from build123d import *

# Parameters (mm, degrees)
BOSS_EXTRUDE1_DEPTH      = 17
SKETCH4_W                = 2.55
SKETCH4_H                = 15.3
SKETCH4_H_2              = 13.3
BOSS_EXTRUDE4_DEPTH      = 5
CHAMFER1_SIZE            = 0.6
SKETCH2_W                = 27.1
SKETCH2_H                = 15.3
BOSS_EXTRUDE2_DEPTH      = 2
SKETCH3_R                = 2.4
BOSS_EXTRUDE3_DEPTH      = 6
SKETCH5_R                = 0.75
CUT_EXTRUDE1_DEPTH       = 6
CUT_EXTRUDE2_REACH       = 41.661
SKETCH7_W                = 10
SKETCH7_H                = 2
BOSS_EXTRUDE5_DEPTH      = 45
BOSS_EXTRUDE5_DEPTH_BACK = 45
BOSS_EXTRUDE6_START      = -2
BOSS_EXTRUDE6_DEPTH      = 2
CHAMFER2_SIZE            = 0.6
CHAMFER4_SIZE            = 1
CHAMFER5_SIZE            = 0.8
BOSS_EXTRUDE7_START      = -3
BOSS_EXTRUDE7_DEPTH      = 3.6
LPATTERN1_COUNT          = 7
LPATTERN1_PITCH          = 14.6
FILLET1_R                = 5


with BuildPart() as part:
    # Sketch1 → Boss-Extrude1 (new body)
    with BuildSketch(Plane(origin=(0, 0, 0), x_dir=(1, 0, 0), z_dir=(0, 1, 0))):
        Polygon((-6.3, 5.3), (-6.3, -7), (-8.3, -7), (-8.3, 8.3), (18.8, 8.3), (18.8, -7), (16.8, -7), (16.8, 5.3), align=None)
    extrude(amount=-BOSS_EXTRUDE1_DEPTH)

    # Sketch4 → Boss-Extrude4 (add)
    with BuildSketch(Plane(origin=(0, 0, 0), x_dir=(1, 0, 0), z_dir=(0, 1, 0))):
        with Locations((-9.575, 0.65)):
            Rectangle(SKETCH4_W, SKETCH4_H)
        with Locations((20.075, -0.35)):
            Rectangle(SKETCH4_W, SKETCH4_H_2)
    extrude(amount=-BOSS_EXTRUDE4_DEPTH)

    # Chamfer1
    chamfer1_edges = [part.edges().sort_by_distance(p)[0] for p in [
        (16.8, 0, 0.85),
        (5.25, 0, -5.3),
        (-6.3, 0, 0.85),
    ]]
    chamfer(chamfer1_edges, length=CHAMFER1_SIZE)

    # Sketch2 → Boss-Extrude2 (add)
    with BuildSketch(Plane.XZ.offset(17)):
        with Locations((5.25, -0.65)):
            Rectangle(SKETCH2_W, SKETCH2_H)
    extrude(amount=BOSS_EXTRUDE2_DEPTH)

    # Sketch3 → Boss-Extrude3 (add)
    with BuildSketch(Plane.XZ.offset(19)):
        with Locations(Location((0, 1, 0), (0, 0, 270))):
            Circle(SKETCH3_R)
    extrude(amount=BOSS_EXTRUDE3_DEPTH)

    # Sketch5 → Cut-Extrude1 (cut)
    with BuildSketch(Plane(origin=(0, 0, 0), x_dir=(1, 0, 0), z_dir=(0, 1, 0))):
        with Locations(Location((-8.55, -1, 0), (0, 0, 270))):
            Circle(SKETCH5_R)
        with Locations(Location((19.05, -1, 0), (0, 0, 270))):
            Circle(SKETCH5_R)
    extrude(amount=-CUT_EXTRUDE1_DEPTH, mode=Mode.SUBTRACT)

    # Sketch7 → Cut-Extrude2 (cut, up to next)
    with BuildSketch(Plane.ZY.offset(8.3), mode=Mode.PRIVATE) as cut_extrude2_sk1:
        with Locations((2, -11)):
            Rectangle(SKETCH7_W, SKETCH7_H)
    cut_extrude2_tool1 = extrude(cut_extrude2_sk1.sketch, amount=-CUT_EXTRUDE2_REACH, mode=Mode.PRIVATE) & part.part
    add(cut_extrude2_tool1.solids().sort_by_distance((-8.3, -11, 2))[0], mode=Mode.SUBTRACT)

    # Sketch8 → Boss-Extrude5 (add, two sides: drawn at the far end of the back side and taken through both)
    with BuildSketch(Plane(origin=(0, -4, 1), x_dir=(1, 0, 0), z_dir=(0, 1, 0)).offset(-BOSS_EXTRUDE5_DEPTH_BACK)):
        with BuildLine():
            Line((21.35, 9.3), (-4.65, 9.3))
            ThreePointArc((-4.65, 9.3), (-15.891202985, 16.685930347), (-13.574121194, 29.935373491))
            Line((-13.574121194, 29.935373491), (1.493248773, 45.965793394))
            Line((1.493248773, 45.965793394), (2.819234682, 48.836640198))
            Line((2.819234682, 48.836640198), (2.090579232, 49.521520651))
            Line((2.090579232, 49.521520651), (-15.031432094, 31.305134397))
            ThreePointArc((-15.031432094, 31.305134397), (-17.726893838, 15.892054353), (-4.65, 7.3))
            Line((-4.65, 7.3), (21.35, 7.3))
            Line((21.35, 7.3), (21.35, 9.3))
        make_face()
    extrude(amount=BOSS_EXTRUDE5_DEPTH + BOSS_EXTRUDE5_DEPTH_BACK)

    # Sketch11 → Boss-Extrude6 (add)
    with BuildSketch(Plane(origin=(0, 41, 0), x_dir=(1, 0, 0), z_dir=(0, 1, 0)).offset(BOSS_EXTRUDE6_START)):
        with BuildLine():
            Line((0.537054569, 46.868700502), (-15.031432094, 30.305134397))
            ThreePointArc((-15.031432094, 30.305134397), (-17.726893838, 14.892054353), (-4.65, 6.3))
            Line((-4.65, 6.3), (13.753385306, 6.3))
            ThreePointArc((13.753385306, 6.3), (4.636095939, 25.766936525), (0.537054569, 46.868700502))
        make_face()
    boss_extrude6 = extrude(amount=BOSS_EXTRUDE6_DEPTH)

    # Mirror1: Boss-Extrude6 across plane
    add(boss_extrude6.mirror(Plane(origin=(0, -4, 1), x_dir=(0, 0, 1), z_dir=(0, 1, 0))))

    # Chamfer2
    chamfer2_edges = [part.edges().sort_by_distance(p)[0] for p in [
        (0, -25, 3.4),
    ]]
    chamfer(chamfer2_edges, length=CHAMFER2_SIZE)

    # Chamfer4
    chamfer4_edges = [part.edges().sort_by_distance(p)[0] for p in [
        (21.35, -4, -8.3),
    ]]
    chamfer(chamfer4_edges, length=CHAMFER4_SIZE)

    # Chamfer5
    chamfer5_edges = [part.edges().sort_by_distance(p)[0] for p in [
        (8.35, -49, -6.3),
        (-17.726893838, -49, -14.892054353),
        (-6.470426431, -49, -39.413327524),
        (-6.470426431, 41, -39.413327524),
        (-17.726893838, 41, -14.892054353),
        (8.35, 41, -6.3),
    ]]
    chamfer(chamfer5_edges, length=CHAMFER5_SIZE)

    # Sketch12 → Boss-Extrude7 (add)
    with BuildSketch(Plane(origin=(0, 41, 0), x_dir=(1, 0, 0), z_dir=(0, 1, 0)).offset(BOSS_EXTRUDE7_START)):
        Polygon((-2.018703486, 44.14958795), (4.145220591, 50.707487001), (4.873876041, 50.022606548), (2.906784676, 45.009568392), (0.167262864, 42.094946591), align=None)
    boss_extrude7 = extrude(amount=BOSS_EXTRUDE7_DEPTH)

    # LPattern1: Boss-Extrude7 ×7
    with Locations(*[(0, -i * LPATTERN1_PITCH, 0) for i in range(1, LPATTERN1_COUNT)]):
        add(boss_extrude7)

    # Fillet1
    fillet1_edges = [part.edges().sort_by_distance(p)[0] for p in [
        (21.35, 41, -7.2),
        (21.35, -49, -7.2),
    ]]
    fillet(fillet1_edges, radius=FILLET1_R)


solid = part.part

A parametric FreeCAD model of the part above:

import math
import FreeCAD as App
import Part
import Sketcher
from FreeCAD import Vector
Q = App.Units.Quantity


def edges_at(feature, points):
    """Names of the edges that pass closest to the given points."""
    edges = feature.Shape.Edges
    near = lambda p: min(range(len(edges)), key=lambda i: edges[i].distToShape(Part.Vertex(*p))[0])
    return sorted({f"Edge{near(p) + 1}" for p in points})

doc = App.newDocument("Part")
body = doc.addObject("PartDesign::Body", "Body")

sketch1 = body.newObject("Sketcher::SketchObject", "Sketch")
sketch1.AttachmentSupport = (doc.getObject("XZ_Plane"), [""])
sketch1.MapMode = "FlatFace"
sketch1.addGeometry([
    Part.LineSegment(Vector(-6.3, 7, 0), Vector(-6.3, -5.3, 0)),
    Part.LineSegment(Vector(-6.3, -5.3, 0), Vector(16.8, -5.3, 0)),
    Part.LineSegment(Vector(16.8, -5.3, 0), Vector(16.8, 7, 0)),
    Part.LineSegment(Vector(16.8, 7, 0), Vector(18.8, 7, 0)),
    Part.LineSegment(Vector(18.8, 7, 0), Vector(18.8, -8.3, 0)),
    Part.LineSegment(Vector(18.8, -8.3, 0), Vector(-8.3, -8.3, 0)),
    Part.LineSegment(Vector(-8.3, -8.3, 0), Vector(-8.3, 7, 0)),
    Part.LineSegment(Vector(-8.3, 7, 0), Vector(-6.3, 7, 0)),
], False)
sketch1.addConstraint([
    Sketcher.Constraint("Coincident", 0, 2, 1, 1),
    Sketcher.Constraint("Coincident", 1, 2, 2, 1),
    Sketcher.Constraint("Coincident", 2, 2, 3, 1),
    Sketcher.Constraint("Coincident", 3, 2, 4, 1),
    Sketcher.Constraint("Coincident", 4, 2, 5, 1),
    Sketcher.Constraint("Coincident", 5, 2, 6, 1),
    Sketcher.Constraint("Coincident", 6, 2, 7, 1),
    Sketcher.Constraint("Coincident", 7, 2, 0, 1),
    Sketcher.Constraint("Vertical", 0),
    Sketcher.Constraint("Horizontal", 1),
    Sketcher.Constraint("Vertical", 2),
    Sketcher.Constraint("Horizontal", 3),
    Sketcher.Constraint("Vertical", 4),
    Sketcher.Constraint("Horizontal", 5),
    Sketcher.Constraint("Vertical", 6),
    Sketcher.Constraint("Horizontal", 7),
    Sketcher.Constraint("Horizontal", 3, 2, 6, 2),
    Sketcher.Constraint("Equal", 3, 7),
    Sketcher.Constraint("DistanceX", 3, 1, 3, 2, Q("2 mm")),
    Sketcher.Constraint("DistanceX", 1, 1, 1, 2, Q("23.1 mm")),
    Sketcher.Constraint("DistanceY", 0, 2, 0, 1, Q("12.3 mm")),
    Sketcher.Constraint("DistanceY", 4, 2, 4, 1, Q("15.3 mm")),
    Sketcher.Constraint("DistanceY", -1, 1, 2, 2, Q("7 mm")),
    Sketcher.Constraint("DistanceX", 0, 2, -1, 1, Q("6.3 mm")),
])
pad1 = body.newObject("PartDesign::Pad", "Pad")
pad1.Profile = sketch1
pad1.Length = 17

sketch2 = body.newObject("Sketcher::SketchObject", "Sketch001")
sketch2.AttachmentSupport = (doc.getObject("XZ_Plane"), [""])
sketch2.MapMode = "FlatFace"
sketch2.addGeometry([
    Part.LineSegment(Vector(-10.8, -8.3, 0), Vector(-10.8, 7, 0)),
    Part.LineSegment(Vector(-10.8, 7, 0), Vector(-8.3, 7, 0)),
    Part.LineSegment(Vector(-8.3, 7, 0), Vector(-8.3, -8.3, 0)),
    Part.LineSegment(Vector(-8.3, -8.3, 0), Vector(-10.8, -8.3, 0)),
    Part.LineSegment(Vector(18.8, -6.3, 0), Vector(18.8, 7, 0)),
    Part.LineSegment(Vector(18.8, 7, 0), Vector(21.4, 7, 0)),
    Part.LineSegment(Vector(21.4, 7, 0), Vector(21.4, -6.3, 0)),
    Part.LineSegment(Vector(21.4, -6.3, 0), Vector(18.8, -6.3, 0)),
], False)
sketch2.addConstraint([
    Sketcher.Constraint("Coincident", 0, 2, 1, 1),
    Sketcher.Constraint("Coincident", 1, 2, 2, 1),
    Sketcher.Constraint("Coincident", 2, 2, 3, 1),
    Sketcher.Constraint("Coincident", 3, 2, 0, 1),
    Sketcher.Constraint("Coincident", 4, 2, 5, 1),
    Sketcher.Constraint("Coincident", 5, 2, 6, 1),
    Sketcher.Constraint("Coincident", 6, 2, 7, 1),
    Sketcher.Constraint("Coincident", 7, 2, 4, 1),
    Sketcher.Constraint("Vertical", 0),
    Sketcher.Constraint("Horizontal", 1),
    Sketcher.Constraint("Vertical", 2),
    Sketcher.Constraint("Horizontal", 3),
    Sketcher.Constraint("Vertical", 4),
    Sketcher.Constraint("Horizontal", 5),
    Sketcher.Constraint("Vertical", 6),
    Sketcher.Constraint("Horizontal", 7),
    Sketcher.Constraint("Horizontal", 1, 2, 4, 2),
    Sketcher.Constraint("Equal", 3, 5),
    Sketcher.Constraint("DistanceY", 0, 1, 0, 2, Q("15.3 mm")),
    Sketcher.Constraint("DistanceY", 4, 1, 4, 2, Q("13.3 mm")),
    Sketcher.Constraint("DistanceY", -1, 1, 0, 2, Q("7 mm")),
    Sketcher.Constraint("DistanceX", 1, 1, 1, 2, Q("2.55 mm")),
    Sketcher.Constraint("DistanceX", 1, 2, -1, 1, Q("8.3 mm")),
    Sketcher.Constraint("DistanceX", -1, 1, 4, 2, Q("18.8 mm")),
])
pad2 = body.newObject("PartDesign::Pad", "Pad001")
pad2.Profile = sketch2
pad2.Length = 5
doc.recompute()

chamfer = body.newObject("PartDesign::Chamfer", "Chamfer")
chamfer.Base = (pad2, edges_at(pad2, [(16.8, 0, 0.85), (5.25, 0, -5.3), (-6.3, 0, 0.85)]))
chamfer.Size = 0.6

sketch3 = body.newObject("Sketcher::SketchObject", "Sketch002")
sketch3.AttachmentSupport = (doc.getObject("XZ_Plane"), [""])
sketch3.MapMode = "FlatFace"
sketch3.AttachmentOffset = App.Placement(Vector(0, 0, 17), App.Rotation())
sketch3.addGeometry([
    Part.LineSegment(Vector(-8, 7, 0), Vector(-8, -8, 0)),
    Part.LineSegment(Vector(-8, -8, 0), Vector(19, -8, 0)),
    Part.LineSegment(Vector(19, -8, 0), Vector(19, 7, 0)),
    Part.LineSegment(Vector(19, 7, 0), Vector(-8, 7, 0)),
], False)
sketch3.addConstraint([
    Sketcher.Constraint("Coincident", 0, 2, 1, 1),
    Sketcher.Constraint("Coincident", 1, 2, 2, 1),
    Sketcher.Constraint("Coincident", 2, 2, 3, 1),
    Sketcher.Constraint("Coincident", 3, 2, 0, 1),
    Sketcher.Constraint("Vertical", 0),
    Sketcher.Constraint("Horizontal", 1),
    Sketcher.Constraint("Vertical", 2),
    Sketcher.Constraint("Horizontal", 3),
    Sketcher.Constraint("DistanceX", 1, 1, 1, 2, Q("27.1 mm")),
    Sketcher.Constraint("DistanceY", 0, 2, 0, 1, Q("15.3 mm")),
    Sketcher.Constraint("DistanceY", -1, 1, 2, 2, Q("7 mm")),
    Sketcher.Constraint("DistanceX", 0, 2, -1, 1, Q("8.3 mm")),
])
pad3 = body.newObject("PartDesign::Pad", "Pad002")
pad3.Profile = sketch3
pad3.Length = 2

sketch4 = body.newObject("Sketcher::SketchObject", "Sketch003")
sketch4.AttachmentSupport = (doc.getObject("XZ_Plane"), [""])
sketch4.MapMode = "FlatFace"
sketch4.AttachmentOffset = App.Placement(Vector(0, 0, 19), App.Rotation())
sketch4.addGeometry(Part.Circle(Vector(0, 1, 0), Vector(0, 0, 1), 2.4), False)
sketch4.addConstraint([
    Sketcher.Constraint("PointOnObject", 0, 3, -2),
    Sketcher.Constraint("Diameter", 0, Q("4.8 mm")),
    Sketcher.Constraint("DistanceY", -1, 1, 0, 3, Q("1 mm")),
])
pad4 = body.newObject("PartDesign::Pad", "Pad003")
pad4.Profile = sketch4
pad4.Length = 6

sketch5 = body.newObject("Sketcher::SketchObject", "Sketch004")
sketch5.AttachmentSupport = (doc.getObject("XZ_Plane"), [""])
sketch5.MapMode = "FlatFace"
sketch5.addGeometry([
    Part.Circle(Vector(-8.6, 1, 0), Vector(0, 0, 1), 0.8),
    Part.Circle(Vector(19.1, 1, 0), Vector(0, 0, 1), 0.8),
], False)
sketch5.addConstraint([
    Sketcher.Constraint("Equal", 0, 1),
    Sketcher.Constraint("Horizontal", 0, 3, 1, 3),
    Sketcher.Constraint("Diameter", 0, Q("1.5 mm")),
    Sketcher.Constraint("DistanceY", -1, 1, 0, 3, Q("1 mm")),
    Sketcher.Constraint("DistanceX", 0, 3, 1, 3, Q("27.6 mm")),
    Sketcher.Constraint("DistanceX", 0, 3, -1, 1, Q("8.55 mm")),
])
pocket1 = body.newObject("PartDesign::Pocket", "Pocket")
pocket1.Profile = sketch5
pocket1.Length = 6
pocket1.Reversed = True

sketch6 = body.newObject("Sketcher::SketchObject", "Sketch005")
sketch6.AttachmentSupport = (doc.getObject("YZ_Plane"), [""])
sketch6.MapMode = "FlatFace"
sketch6.AttachmentOffset = App.Placement(Vector(0, 0, -8.3), App.Rotation())
sketch6.addGeometry([
    Part.LineSegment(Vector(-10, -3, 0), Vector(-12, -3, 0)),
    Part.LineSegment(Vector(-12, -3, 0), Vector(-12, 7, 0)),
    Part.LineSegment(Vector(-12, 7, 0), Vector(-10, 7, 0)),
    Part.LineSegment(Vector(-10, 7, 0), Vector(-10, -3, 0)),
], False)
sketch6.addConstraint([
    Sketcher.Constraint("Coincident", 0, 2, 1, 1),
    Sketcher.Constraint("Coincident", 1, 2, 2, 1),
    Sketcher.Constraint("Coincident", 2, 2, 3, 1),
    Sketcher.Constraint("Coincident", 3, 2, 0, 1),
    Sketcher.Constraint("Horizontal", 0),
    Sketcher.Constraint("Vertical", 1),
    Sketcher.Constraint("Horizontal", 2),
    Sketcher.Constraint("Vertical", 3),
    Sketcher.Constraint("DistanceX", 0, 2, 0, 1, Q("2 mm")),
    Sketcher.Constraint("DistanceY", 1, 1, 1, 2, Q("10 mm")),
    Sketcher.Constraint("DistanceX", 0, 2, -1, 1, Q("12 mm")),
    Sketcher.Constraint("DistanceY", 0, 2, -1, 1, Q("3 mm")),
])
pocket2 = body.newObject("PartDesign::Pocket", "Pocket001")
pocket2.Profile = sketch6
pocket2.Type = "UpToFirst"
pocket2.Reversed = True

sketch7 = body.newObject("Sketcher::SketchObject", "Sketch006")
sketch7.AttachmentSupport = (doc.getObject("XZ_Plane"), [""])
sketch7.MapMode = "FlatFace"
sketch7.AttachmentOffset = App.Placement(Vector(0, 0, 4), App.Rotation())
sketch7.addGeometry([
    Part.LineSegment(Vector(21.4, -8.3, 0), Vector(-4.7, -8.3, 0)),
    Part.ArcOfCircle(Part.Circle(Vector(-4.7, -20.5, 0), Vector(0, 0, 1), 12.2), math.radians(90), math.radians(223)),
    Part.LineSegment(Vector(-13.6, -28.9, 0), Vector(1.5, -45, 0)),
    Part.LineSegment(Vector(1.5, -45, 0), Vector(2.8, -47.8, 0)),
    Part.LineSegment(Vector(2.8, -47.8, 0), Vector(2.1, -48.5, 0)),
    Part.LineSegment(Vector(2.1, -48.5, 0), Vector(-15, -30.3, 0)),
    Part.ArcOfCircle(Part.Circle(Vector(-4.7, -20.5, 0), Vector(0, 0, 1), 14.2), math.radians(90), math.radians(223)),
    Part.LineSegment(Vector(-4.7, -6.3, 0), Vector(21.4, -6.3, 0)),
    Part.LineSegment(Vector(21.4, -6.3, 0), Vector(21.4, -8.3, 0)),
], False)
sketch7.addConstraint([
    Sketcher.Constraint("Tangent", 0, 2, 1, 1),
    Sketcher.Constraint("Tangent", 1, 2, 2, 1),
    Sketcher.Constraint("Coincident", 2, 2, 3, 1),
    Sketcher.Constraint("Coincident", 3, 2, 4, 1),
    Sketcher.Constraint("Coincident", 4, 2, 5, 1),
    Sketcher.Constraint("Tangent", 5, 2, 6, 2),
    Sketcher.Constraint("Tangent", 6, 1, 7, 1),
    Sketcher.Constraint("Coincident", 7, 2, 8, 1),
    Sketcher.Constraint("Coincident", 8, 2, 0, 1),
    Sketcher.Constraint("Horizontal", 0),
    Sketcher.Constraint("Horizontal", 7),
    Sketcher.Constraint("Vertical", 8),
    Sketcher.Constraint("Coincident", 6, 3, 1, 3),
    Sketcher.Constraint("Perpendicular", 2, 4),
    Sketcher.Constraint("Perpendicular", 4, 5),
    Sketcher.Constraint("DistanceX", 0, 2, 0, 1, Q("26 mm")),
    Sketcher.Constraint("DistanceY", 8, 2, 8, 1, Q("2 mm")),
    Sketcher.Constraint("Distance", 2, Q("22 mm")),
    Sketcher.Constraint("Distance", 4, Q("1 mm")),
    Sketcher.Constraint("Distance", 5, Q("25 mm")),
    Sketcher.Constraint("DistanceY", 0, 2, -1, 1, Q("8.3 mm")),
    Sketcher.Constraint("DistanceX", 1, 3, -1, 1, Q("4.65 mm")),
    Sketcher.Constraint("Radius", 1, Q("12.247381 mm")),
    Sketcher.Constraint("DistanceX", 1, 2, 4, 2, Q("15.6647 mm")),
])
pad5 = body.newObject("PartDesign::Pad", "Pad004")
pad5.Profile = sketch7
pad5.Type = "TwoLengths"
pad5.Length = 45
pad5.Length2 = 45
pad5.Reversed = True

sketch8 = body.newObject("Sketcher::SketchObject", "Sketch007")
sketch8.AttachmentSupport = (doc.getObject("XZ_Plane"), [""])
sketch8.MapMode = "FlatFace"
sketch8.AttachmentOffset = App.Placement(Vector(0, 0, -39), App.Rotation())
sketch8.addGeometry([
    Part.LineSegment(Vector(1, -47, 0), Vector(-15, -30, 0)),
    Part.ArcOfCircle(Part.Circle(Vector(-5, -21, 0), Vector(0, 0, 1), 14), math.radians(90), math.radians(223)),
    Part.LineSegment(Vector(-5, -6, 0), Vector(14, -6, 0)),
    Part.ArcOfCircle(Part.Circle(Vector(88, -53, 0), Vector(0, 0, 1), 88), math.radians(148), math.radians(176)),
], False)
sketch8.addConstraint([
    Sketcher.Constraint("Tangent", 0, 2, 1, 2),
    Sketcher.Constraint("Tangent", 1, 1, 2, 1),
    Sketcher.Constraint("Coincident", 2, 2, 3, 1),
    Sketcher.Constraint("Coincident", 3, 2, 0, 1),
    Sketcher.Constraint("Horizontal", 2),
    Sketcher.Constraint("DistanceY", 1, 1, -1, 1, Q("6.3 mm")),
    Sketcher.Constraint("DistanceX", 1, 3, -1, 1, Q("4.65 mm")),
    Sketcher.Constraint("Radius", 1, Q("14.247381 mm")),
    Sketcher.Constraint("Radius", 3, Q("87.552406 mm")),
    Sketcher.Constraint("DistanceY", 3, 2, -1, 1, Q("46.868701 mm")),
    Sketcher.Constraint("DistanceX", 2, 1, 2, 2, Q("18.403385 mm")),
    Sketcher.Constraint("DistanceX", 2, 2, 3, 3, Q("74.129009 mm")),
])
pad6 = body.newObject("PartDesign::Pad", "Pad005")
pad6.Profile = sketch8
pad6.Length = 2
pad6.Reversed = True
doc.recompute()

datumplane = body.newObject("PartDesign::Plane", "DatumPlane")
datumplane.AttachmentSupport = (doc.getObject("XZ_Plane"), [""])
datumplane.MapMode = "FlatFace"
datumplane.AttachmentOffset = App.Placement(Vector(0, 0, 4), App.Rotation())
mirrored = body.newObject("PartDesign::Mirrored", "Mirrored")
mirrored.Originals = [pad6]
mirrored.MirrorPlane = (datumplane, [""])
body.Tip = mirrored
doc.recompute()

chamfer2 = body.newObject("PartDesign::Chamfer", "Chamfer001")
chamfer2.Base = (mirrored, edges_at(mirrored, [(0, -25, 3.4)]))
chamfer2.Size = 0.6
doc.recompute()

chamfer3 = body.newObject("PartDesign::Chamfer", "Chamfer002")
chamfer3.Base = (chamfer2, edges_at(chamfer2, [(21.35, -4, -8.3)]))
chamfer3.Size = 1
doc.recompute()

chamfer4 = body.newObject("PartDesign::Chamfer", "Chamfer003")
chamfer4.Base = (chamfer3, edges_at(chamfer3, [
    (8.35, -49, -6.3),
    (-17.727, -49, -14.892),
    (-6.47, -49, -39.413),
    (-6.47, 41, -39.413),
    (-17.727, 41, -14.892),
    (8.35, 41, -6.3),
]))
chamfer4.Size = 0.8

sketch9 = body.newObject("Sketcher::SketchObject", "Sketch008")
sketch9.AttachmentSupport = (doc.getObject("XZ_Plane"), [""])
sketch9.MapMode = "FlatFace"
sketch9.AttachmentOffset = App.Placement(Vector(0, 0, -38), App.Rotation())
sketch9.addGeometry([
    Part.LineSegment(Vector(4.1, -50.7, 0), Vector(-2, -44.1, 0)),
    Part.LineSegment(Vector(-2, -44.1, 0), Vector(0.2, -42.1, 0)),
    Part.LineSegment(Vector(0.2, -42.1, 0), Vector(2.9, -45, 0)),
    Part.LineSegment(Vector(2.9, -45, 0), Vector(4.9, -50, 0)),
    Part.LineSegment(Vector(4.9, -50, 0), Vector(4.1, -50.7, 0)),
], False)
sketch9.addConstraint([
    Sketcher.Constraint("Coincident", 0, 2, 1, 1),
    Sketcher.Constraint("Coincident", 1, 2, 2, 1),
    Sketcher.Constraint("Coincident", 2, 2, 3, 1),
    Sketcher.Constraint("Coincident", 3, 2, 4, 1),
    Sketcher.Constraint("Coincident", 4, 2, 0, 1),
    Sketcher.Constraint("Perpendicular", 0, 1),
    Sketcher.Constraint("Perpendicular", 1, 2),
    Sketcher.Constraint("Perpendicular", 2, 4),
    Sketcher.Constraint("Distance", 0, Q("9 mm")),
    Sketcher.Constraint("Distance", 1, Q("3 mm")),
    Sketcher.Constraint("Distance", 2, Q("4 mm")),
    Sketcher.Constraint("Distance", 4, Q("1 mm")),
    Sketcher.Constraint("DistanceY", 4, 2, 0, 2, Q("6.557899 mm")),
    Sketcher.Constraint("DistanceY", 2, 2, -1, 1, Q("45.009568 mm")),
    Sketcher.Constraint("DistanceX", -1, 1, 4, 2, Q("4.145221 mm")),
])
pad7 = body.newObject("PartDesign::Pad", "Pad006")
pad7.Profile = sketch9
pad7.Length = 3.6
pad7.Reversed = True
doc.recompute()

linearpattern = body.newObject("PartDesign::LinearPattern", "LinearPattern")
linearpattern.Originals = [pad7]
linearpattern.Direction = (doc.getObject("Y_Axis"), [""])
linearpattern.Mode = "offset"
linearpattern.Offset = 14.6
linearpattern.Occurrences = 7
linearpattern.Reversed = True
body.Tip = linearpattern
doc.recompute()

fillet = body.newObject("PartDesign::Fillet", "Fillet")
fillet.Base = (linearpattern, edges_at(linearpattern, [(21.35, 41, -7.2), (21.35, -49, -7.2)]))
fillet.Radius = 5

doc.recompute()
